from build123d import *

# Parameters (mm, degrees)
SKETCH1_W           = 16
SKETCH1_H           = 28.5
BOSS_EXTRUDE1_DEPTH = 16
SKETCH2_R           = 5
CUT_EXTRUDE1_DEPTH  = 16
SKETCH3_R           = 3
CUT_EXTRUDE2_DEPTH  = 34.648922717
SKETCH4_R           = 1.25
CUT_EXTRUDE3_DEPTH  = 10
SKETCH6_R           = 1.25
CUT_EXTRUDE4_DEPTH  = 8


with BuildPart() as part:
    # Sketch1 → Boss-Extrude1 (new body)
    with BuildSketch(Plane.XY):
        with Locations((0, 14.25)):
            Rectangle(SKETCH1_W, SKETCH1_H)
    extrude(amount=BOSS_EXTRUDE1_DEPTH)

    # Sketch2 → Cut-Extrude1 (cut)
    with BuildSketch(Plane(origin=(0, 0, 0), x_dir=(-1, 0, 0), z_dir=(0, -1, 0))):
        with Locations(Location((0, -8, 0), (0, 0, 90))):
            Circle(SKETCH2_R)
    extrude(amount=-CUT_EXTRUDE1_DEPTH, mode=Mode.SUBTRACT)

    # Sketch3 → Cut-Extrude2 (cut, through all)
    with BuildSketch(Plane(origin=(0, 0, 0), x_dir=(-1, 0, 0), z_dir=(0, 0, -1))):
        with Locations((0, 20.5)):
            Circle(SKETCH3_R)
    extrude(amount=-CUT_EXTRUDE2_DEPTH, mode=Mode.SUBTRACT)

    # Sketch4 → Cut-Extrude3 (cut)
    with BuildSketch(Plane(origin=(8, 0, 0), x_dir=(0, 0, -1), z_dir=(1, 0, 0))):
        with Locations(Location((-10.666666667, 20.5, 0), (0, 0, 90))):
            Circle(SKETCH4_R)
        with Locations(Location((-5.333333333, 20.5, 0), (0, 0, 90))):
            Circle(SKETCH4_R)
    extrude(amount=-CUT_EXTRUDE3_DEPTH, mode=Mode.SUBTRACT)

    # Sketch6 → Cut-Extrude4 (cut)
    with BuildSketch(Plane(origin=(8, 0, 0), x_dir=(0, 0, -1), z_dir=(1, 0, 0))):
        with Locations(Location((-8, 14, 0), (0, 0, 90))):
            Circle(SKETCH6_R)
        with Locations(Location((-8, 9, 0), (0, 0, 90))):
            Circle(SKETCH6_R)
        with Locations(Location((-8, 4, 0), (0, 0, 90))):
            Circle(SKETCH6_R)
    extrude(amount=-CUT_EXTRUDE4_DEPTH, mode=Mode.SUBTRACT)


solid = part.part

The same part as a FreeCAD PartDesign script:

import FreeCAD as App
import Part
import Sketcher

V = App.Vector


def add_polygon(sketch, points):
    """Adds a closed chain of lines whose ends are joined by coincident constraints."""
    first, n = sketch.GeometryCount, len(points)
    for a, b in zip(points, points[1:] + points[:1]):
        sketch.addGeometry(Part.LineSegment(App.Vector(*a, 0), App.Vector(*b, 0)), False)
    for i in range(n):
        sketch.addConstraint(Sketcher.Constraint("Coincident", first + i, 2, first + (i + 1) % n, 1))

doc = App.newDocument("Part")
body = doc.addObject("PartDesign::Body", "Body")

# Sketch on XY plane
sketch1 = body.newObject("Sketcher::SketchObject", "Sketch")
sketch1.AttachmentSupport = (doc.getObject("XY_Plane"), [""])
sketch1.MapMode = "FlatFace"
add_polygon(sketch1, [(-8, 28), (-8, 0), (8, 0), (8, 28)])  # lines 0-3
sketch1.addConstraint(Sketcher.Constraint("Vertical", 0))
sketch1.addConstraint(Sketcher.Constraint("Horizontal", 1))
sketch1.addConstraint(Sketcher.Constraint("Vertical", 2))
sketch1.addConstraint(Sketcher.Constraint("Horizontal", 3))
sketch1.addConstraint(Sketcher.Constraint("Symmetric", 0, 2, 1, 2, -1, 1))
sketch1.addConstraint(Sketcher.Constraint("DistanceX", 1, 1, 1, 2, 16.0))
sketch1.addConstraint(Sketcher.Constraint("DistanceY", 0, 2, 0, 1, 28.5))
pad1 = body.newObject("PartDesign::Pad", "Pad")
pad1.Profile = sketch1
pad1.Length = 16

# Sketch on XZ plane
sketch2 = body.newObject("Sketcher::SketchObject", "Sketch001")
sketch2.AttachmentSupport = (doc.getObject("XZ_Plane"), [""])
sketch2.MapMode = "FlatFace"
sketch2.addGeometry(Part.Circle(V(0, 8, 0), V(0, 0, 1), 5), False)
sketch2.addConstraint(Sketcher.Constraint("PointOnObject", 0, 3, -2))
sketch2.addConstraint(Sketcher.Constraint("Diameter", 0, 10.0))
sketch2.addConstraint(Sketcher.Constraint("DistanceY", -1, 1, 0, 3, 8.0))
pocket1 = body.newObject("PartDesign::Pocket", "Pocket")
pocket1.Profile = sketch2
pocket1.Length = 16

# Sketch on XY plane
sketch3 = body.newObject("Sketcher::SketchObject", "Sketch002")
sketch3.AttachmentSupport = (doc.getObject("XY_Plane"), [""])
sketch3.MapMode = "FlatFace"
sketch3.addGeometry(Part.Circle(V(0, 20.5, 0), V(0, 0, 1), 3), False)
sketch3.addConstraint(Sketcher.Constraint("PointOnObject", 0, 3, -2))
sketch3.addConstraint(Sketcher.Constraint("Diameter", 0, 6.0))
sketch3.addConstraint(Sketcher.Constraint("DistanceY", -1, 1, 0, 3, 20.5))
pocket2 = body.newObject("PartDesign::Pocket", "Pocket001")
pocket2.Profile = sketch3
pocket2.Type = "ThroughAll"
pocket2.Reversed = True

# Sketch on YZ plane
sketch4 = body.newObject("Sketcher::SketchObject", "Sketch003")
sketch4.AttachmentSupport = (doc.getObject("YZ_Plane"), [""])
sketch4.MapMode = "FlatFace"
sketch4.AttachmentOffset = App.Placement(V(0, 0, 8), App.Rotation())
sketch4.addGeometry(Part.Circle(V(20.5, 10.7, 0), V(0, 0, 1), 1.2), False)
sketch4.addGeometry(Part.Circle(V(20.5, 5.3, 0), V(0, 0, 1), 1.2), False)
sketch4.addConstraint(Sketcher.Constraint("Equal", 0, 1))
sketch4.addConstraint(Sketcher.Constraint("Vertical", 0, 3, 1, 3))
sketch4.addConstraint(Sketcher.Constraint("Diameter", 0, 2.5))
sketch4.addConstraint(Sketcher.Constraint("DistanceX", -1, 1, 0, 3, 20.5))
sketch4.addConstraint(Sketcher.Constraint("DistanceY", -1, 1, 0, 3, 10.666667))
sketch4.addConstraint(Sketcher.Constraint("DistanceY", -1, 1, 1, 3, 5.333333))
pocket3 = body.newObject("PartDesign::Pocket", "Pocket002")
pocket3.Profile = sketch4
pocket3.Length = 10

# Sketch on YZ plane
sketch5 = body.newObject("Sketcher::SketchObject", "Sketch004")
sketch5.AttachmentSupport = (doc.getObject("YZ_Plane"), [""])
sketch5.MapMode = "FlatFace"
sketch5.AttachmentOffset = App.Placement(V(0, 0, 8), App.Rotation())
sketch5.addGeometry(Part.Circle(V(14, 8, 0), V(0, 0, 1), 1.2), False)
sketch5.addGeometry(Part.Circle(V(9, 8, 0), V(0, 0, 1), 1.2), False)
sketch5.addGeometry(Part.Circle(V(4, 8, 0), V(0, 0, 1), 1.2), False)
sketch5.addConstraint(Sketcher.Constraint("Equal", 0, 1))
sketch5.addConstraint(Sketcher.Constraint("Equal", 1, 2))
sketch5.addConstraint(Sketcher.Constraint("Horizontal", 0, 3, 1, 3))
sketch5.addConstraint(Sketcher.Constraint("Horizontal", 1, 3, 2, 3))
sketch5.addConstraint(Sketcher.Constraint("Diameter", 0, 2.5))
sketch5.addConstraint(Sketcher.Constraint("DistanceX", -1, 1, 0, 3, 14.0))
sketch5.addConstraint(Sketcher.Constraint("DistanceY", -1, 1, 0, 3, 8.0))
sketch5.addConstraint(Sketcher.Constraint("DistanceX", -1, 1, 1, 3, 9.0))
sketch5.addConstraint(Sketcher.Constraint("DistanceX", -1, 1, 2, 3, 4.0))
pocket4 = body.newObject("PartDesign::Pocket", "Pocket003")
pocket4.Profile = sketch5
pocket4.Length = 8

doc.recompute()
